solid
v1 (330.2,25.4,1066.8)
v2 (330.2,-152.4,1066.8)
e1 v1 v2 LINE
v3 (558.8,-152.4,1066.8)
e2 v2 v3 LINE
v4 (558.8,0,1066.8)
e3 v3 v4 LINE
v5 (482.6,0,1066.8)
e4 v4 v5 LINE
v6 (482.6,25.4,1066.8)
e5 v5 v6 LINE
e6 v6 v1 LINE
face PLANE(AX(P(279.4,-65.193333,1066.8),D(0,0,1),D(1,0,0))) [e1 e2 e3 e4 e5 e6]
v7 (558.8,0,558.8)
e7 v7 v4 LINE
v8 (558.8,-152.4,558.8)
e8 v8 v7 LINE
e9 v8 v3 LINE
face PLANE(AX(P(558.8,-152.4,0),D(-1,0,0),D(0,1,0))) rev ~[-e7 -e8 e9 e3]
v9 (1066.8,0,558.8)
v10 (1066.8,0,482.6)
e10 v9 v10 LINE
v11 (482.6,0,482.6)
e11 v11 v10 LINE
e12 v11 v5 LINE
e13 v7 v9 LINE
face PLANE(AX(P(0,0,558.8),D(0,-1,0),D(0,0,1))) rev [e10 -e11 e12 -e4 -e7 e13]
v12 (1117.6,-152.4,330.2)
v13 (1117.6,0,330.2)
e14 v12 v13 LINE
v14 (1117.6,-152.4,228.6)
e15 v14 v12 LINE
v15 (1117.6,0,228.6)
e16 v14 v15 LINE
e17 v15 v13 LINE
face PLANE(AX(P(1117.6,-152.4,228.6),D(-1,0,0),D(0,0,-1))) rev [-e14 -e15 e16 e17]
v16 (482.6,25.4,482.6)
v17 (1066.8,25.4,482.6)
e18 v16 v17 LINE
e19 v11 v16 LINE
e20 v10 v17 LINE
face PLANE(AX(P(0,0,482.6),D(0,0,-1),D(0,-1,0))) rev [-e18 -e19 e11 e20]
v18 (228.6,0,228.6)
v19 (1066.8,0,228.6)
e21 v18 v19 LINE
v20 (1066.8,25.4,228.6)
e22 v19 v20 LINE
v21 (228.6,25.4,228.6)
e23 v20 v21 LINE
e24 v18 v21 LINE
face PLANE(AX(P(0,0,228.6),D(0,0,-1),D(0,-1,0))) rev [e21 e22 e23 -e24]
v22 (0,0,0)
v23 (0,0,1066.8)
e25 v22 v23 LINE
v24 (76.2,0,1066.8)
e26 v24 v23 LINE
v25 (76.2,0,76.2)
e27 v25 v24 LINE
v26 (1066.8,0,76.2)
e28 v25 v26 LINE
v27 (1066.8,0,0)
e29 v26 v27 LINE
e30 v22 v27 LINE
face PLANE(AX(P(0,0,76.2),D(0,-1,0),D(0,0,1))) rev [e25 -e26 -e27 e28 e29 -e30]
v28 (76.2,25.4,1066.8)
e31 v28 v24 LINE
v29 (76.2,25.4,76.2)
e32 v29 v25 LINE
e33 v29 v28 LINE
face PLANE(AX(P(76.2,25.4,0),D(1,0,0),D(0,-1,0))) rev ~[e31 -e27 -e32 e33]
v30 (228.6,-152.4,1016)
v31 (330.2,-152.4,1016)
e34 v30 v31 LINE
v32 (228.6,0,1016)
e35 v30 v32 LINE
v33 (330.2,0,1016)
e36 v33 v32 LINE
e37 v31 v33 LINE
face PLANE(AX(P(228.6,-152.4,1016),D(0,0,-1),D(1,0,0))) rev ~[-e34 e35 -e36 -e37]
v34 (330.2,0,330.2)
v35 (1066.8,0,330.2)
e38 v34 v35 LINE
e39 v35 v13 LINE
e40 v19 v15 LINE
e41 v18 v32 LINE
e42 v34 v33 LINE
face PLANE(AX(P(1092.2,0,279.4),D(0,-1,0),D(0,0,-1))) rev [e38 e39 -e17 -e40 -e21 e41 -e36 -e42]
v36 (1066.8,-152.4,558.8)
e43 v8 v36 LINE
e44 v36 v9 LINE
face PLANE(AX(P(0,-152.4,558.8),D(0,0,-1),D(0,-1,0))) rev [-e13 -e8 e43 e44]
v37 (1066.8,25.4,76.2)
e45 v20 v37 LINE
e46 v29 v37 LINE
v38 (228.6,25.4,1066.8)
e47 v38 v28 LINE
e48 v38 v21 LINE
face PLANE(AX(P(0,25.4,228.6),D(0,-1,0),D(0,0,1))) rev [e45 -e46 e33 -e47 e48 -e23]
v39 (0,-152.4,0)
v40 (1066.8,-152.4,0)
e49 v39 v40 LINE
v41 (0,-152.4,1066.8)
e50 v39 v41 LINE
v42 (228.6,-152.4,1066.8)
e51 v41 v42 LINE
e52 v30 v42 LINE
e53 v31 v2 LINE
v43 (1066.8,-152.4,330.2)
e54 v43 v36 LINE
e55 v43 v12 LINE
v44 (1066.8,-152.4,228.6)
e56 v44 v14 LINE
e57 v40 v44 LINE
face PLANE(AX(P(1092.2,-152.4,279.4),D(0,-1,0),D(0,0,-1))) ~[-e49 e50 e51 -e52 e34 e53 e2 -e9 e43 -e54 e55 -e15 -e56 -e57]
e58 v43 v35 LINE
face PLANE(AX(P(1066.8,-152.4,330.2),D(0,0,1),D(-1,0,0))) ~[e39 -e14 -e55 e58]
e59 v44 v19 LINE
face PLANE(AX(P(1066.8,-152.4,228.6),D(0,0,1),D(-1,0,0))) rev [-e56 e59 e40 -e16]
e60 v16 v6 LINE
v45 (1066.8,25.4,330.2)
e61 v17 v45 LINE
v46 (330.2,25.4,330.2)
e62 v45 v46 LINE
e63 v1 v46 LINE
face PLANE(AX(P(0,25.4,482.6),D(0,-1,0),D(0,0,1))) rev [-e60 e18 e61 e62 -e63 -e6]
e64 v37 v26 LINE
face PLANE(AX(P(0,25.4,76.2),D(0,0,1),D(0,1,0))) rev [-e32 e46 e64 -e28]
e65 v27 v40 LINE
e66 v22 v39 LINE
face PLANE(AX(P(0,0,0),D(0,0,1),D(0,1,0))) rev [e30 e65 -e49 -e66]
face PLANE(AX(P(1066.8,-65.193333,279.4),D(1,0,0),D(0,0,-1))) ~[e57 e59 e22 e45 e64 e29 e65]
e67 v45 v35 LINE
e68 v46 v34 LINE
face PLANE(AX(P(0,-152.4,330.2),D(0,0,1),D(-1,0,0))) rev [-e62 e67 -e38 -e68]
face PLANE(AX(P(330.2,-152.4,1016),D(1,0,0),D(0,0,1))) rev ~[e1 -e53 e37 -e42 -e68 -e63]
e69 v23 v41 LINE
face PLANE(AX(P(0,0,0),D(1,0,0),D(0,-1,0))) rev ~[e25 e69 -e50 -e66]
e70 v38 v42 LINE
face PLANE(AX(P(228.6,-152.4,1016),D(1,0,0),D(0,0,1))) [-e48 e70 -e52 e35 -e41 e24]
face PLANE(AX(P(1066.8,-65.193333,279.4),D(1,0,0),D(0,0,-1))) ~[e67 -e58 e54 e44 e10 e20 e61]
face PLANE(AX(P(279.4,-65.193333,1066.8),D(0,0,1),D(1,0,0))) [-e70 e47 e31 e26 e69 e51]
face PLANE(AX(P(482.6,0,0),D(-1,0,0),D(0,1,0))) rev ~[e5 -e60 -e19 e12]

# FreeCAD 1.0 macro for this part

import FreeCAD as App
import Part
import Sketcher
from FreeCAD import Vector
Q = App.Units.Quantity

doc = App.newDocument("Part")
params = doc.addObject("Spreadsheet::Sheet", "Params")
for row, (alias, value) in enumerate([
    ("sketch1_width", "3 in"),
    ("sketch1_width2", "22 in"),
    ("sketch1_width3", "6 in"),
    ("sketch1_height", "1 in"),
    ("pad1_length", "42 in"),
    ("sketch2_width", "4 in"),
    ("sketch2_height", "2 in"),
    ("pad2_length", "6 in"),
    ("sketch3_width", "4 in"),
    ("sketch3_height", "2 in"),
    ("sketch5_width", "4 in"),
], start=1):
    params.set(f"A{row}", alias)
    params.set(f"B{row}", "=" + value)
    params.setAlias(f"B{row}", alias)

body = doc.addObject("PartDesign::Body", "Body")

sketch1 = body.newObject("Sketcher::SketchObject", "Sketch")
sketch1.AttachmentSupport = (doc.getObject("XY_Plane"), [""])
sketch1.MapMode = "FlatFace"
sketch1.addGeometry(Part.LineSegment(Vector(76, 0, 0), Vector(0, 0, 0)), False)
sketch1.addGeometry(Part.LineSegment(Vector(0, 0, 0), Vector(0, -152, 0)), False)
sketch1.addGeometry(Part.LineSegment(Vector(0, -152, 0), Vector(559, -152, 0)), False)
sketch1.addGeometry(Part.LineSegment(Vector(559, -152, 0), Vector(559, 0, 0)), False)
sketch1.addGeometry(Part.LineSegment(Vector(559, 0, 0), Vector(483, 0, 0)), False)
sketch1.addGeometry(Part.LineSegment(Vector(483, 0, 0), Vector(483, 25, 0)), False)
sketch1.addGeometry(Part.LineSegment(Vector(483, 25, 0), Vector(330, 25, 0)), False)
sketch1.addGeometry(Part.LineSegment(Vector(330, 25, 0), Vector(330, 0, 0)), False)
sketch1.addGeometry(Part.LineSegment(Vector(330, 0, 0), Vector(229, 0, 0)), False)
sketch1.addGeometry(Part.LineSegment(Vector(229, 0, 0), Vector(229, 25, 0)), False)
sketch1.addGeometry(Part.LineSegment(Vector(229, 25, 0), Vector(76, 25, 0)), False)
sketch1.addGeometry(Part.LineSegment(Vector(76, 25, 0), Vector(76, 0, 0)), False)
sketch1.addConstraint(Sketcher.Constraint("Coincident", 0, 2, 1, 1))
sketch1.addConstraint(Sketcher.Constraint("Coincident", 1, 2, 2, 1))
sketch1.addConstraint(Sketcher.Constraint("Coincident", 2, 2, 3, 1))
sketch1.addConstraint(Sketcher.Constraint("Coincident", 3, 2, 4, 1))
sketch1.addConstraint(Sketcher.Constraint("Coincident", 4, 2, 5, 1))
sketch1.addConstraint(Sketcher.Constraint("Coincident", 5, 2, 6, 1))
sketch1.addConstraint(Sketcher.Constraint("Coincident", 6, 2, 7, 1))
sketch1.addConstraint(Sketcher.Constraint("Coincident", 7, 2, 8, 1))
sketch1.addConstraint(Sketcher.Constraint("Coincident", 8, 2, 9, 1))
sketch1.addConstraint(Sketcher.Constraint("Coincident", 9, 2, 10, 1))
sketch1.addConstraint(Sketcher.Constraint("Coincident", 10, 2, 11, 1))
sketch1.addConstraint(Sketcher.Constraint("Coincident", 11, 2, 0, 1))
sketch1.addConstraint(Sketcher.Constraint("Horizontal", 0))
sketch1.addConstraint(Sketcher.Constraint("Vertical", 1))
sketch1.addConstraint(Sketcher.Constraint("Horizontal", 2))
sketch1.addConstraint(Sketcher.Constraint("Vertical", 3))
sketch1.addConstraint(Sketcher.Constraint("Horizontal", 4))
sketch1.addConstraint(Sketcher.Constraint("Vertical", 5))
sketch1.addConstraint(Sketcher.Constraint("Horizontal", 6))
sketch1.addConstraint(Sketcher.Constraint("Vertical", 7))
sketch1.addConstraint(Sketcher.Constraint("Horizontal", 8))
sketch1.addConstraint(Sketcher.Constraint("Vertical", 9))
sketch1.addConstraint(Sketcher.Constraint("Horizontal", 10))
sketch1.addConstraint(Sketcher.Constraint("Vertical", 11))
sketch1.addConstraint(Sketcher.Constraint("Coincident", 0, 2, -1, 1))
sketch1.addConstraint(Sketcher.Constraint("PointOnObject", 3, 2, -1))
sketch1.addConstraint(Sketcher.Constraint("PointOnObject", 7, 2, -1))
sketch1.addConstraint(Sketcher.Constraint("Horizontal", 6, 2, 9, 2))
sketch1.addConstraint(Sketcher.Constraint("Equal", 0, 4))
sketch1.addConstraint(Sketcher.Constraint("Equal", 6, 10))
sketch1.addConstraint(Sketcher.Constraint("Equal", 10, 1))
sketch1.addConstraint(Sketcher.Constraint("DistanceX", 0, 2, 0, 1, Q("3 in")))
sketch1.addConstraint(Sketcher.Constraint("DistanceX", 2, 1, 2, 2, Q("22 in")))
sketch1.addConstraint(Sketcher.Constraint("DistanceX", 6, 2, 6, 1, Q("6 in")))
sketch1.addConstraint(Sketcher.Constraint("DistanceY", 5, 1, 5, 2, Q("1 in")))
sketch1.setExpression("Constraints[31]", "Params.sketch1_width")
sketch1.setExpression("Constraints[32]", "Params.sketch1_width2")
sketch1.setExpression("Constraints[33]", "Params.sketch1_width3")
sketch1.setExpression("Constraints[34]", "Params.sketch1_height")
pad1 = body.newObject("PartDesign::Pad", "Pad")
pad1.Profile = sketch1
pad1.setExpression("Length", "Params.pad1_length")

sketch2 = body.newObject("Sketcher::SketchObject", "Sketch001")
sketch2.AttachmentSupport = (doc.getObject("XZ_Plane"), [""])
sketch2.MapMode = "FlatFace"
sketch2.AttachmentOffset = App.Placement(Vector(0, 0, 6 * 25.4), App.Rotation())
sketch2.addGeometry(Part.LineSegment(Vector(229, 1118, 0), Vector(229, 1067, 0)), False)
sketch2.addGeometry(Part.LineSegment(Vector(229, 1067, 0), Vector(330, 1067, 0)), False)
sketch2.addGeometry(Part.LineSegment(Vector(330, 1067, 0), Vector(330, 1118, 0)), False)
sketch2.addGeometry(Part.LineSegment(Vector(330, 1118, 0), Vector(229, 1118, 0)), False)
sketch2.addConstraint(Sketcher.Constraint("Coincident", 0, 2, 1, 1))
sketch2.addConstraint(Sketcher.Constraint("Coincident", 1, 2, 2, 1))
sketch2.addConstraint(Sketcher.Constraint("Coincident", 2, 2, 3, 1))
sketch2.addConstraint(Sketcher.Constraint("Coincident", 3, 2, 0, 1))
sketch2.addConstraint(Sketcher.Constraint("Vertical", 0))
sketch2.addConstraint(Sketcher.Constraint("Horizontal", 1))
sketch2.addConstraint(Sketcher.Constraint("Vertical", 2))
sketch2.addConstraint(Sketcher.Constraint("Horizontal", 3))
sketch2.addConstraint(Sketcher.Constraint("DistanceX", 1, 1, 1, 2, Q("4 in")))
sketch2.addConstraint(Sketcher.Constraint("DistanceY", 0, 2, 0, 1, Q("2 in")))
sketch2.addConstraint(Sketcher.Constraint("DistanceX", -1, 1, 0, 2, Q("9 in")))
sketch2.addConstraint(Sketcher.Constraint("DistanceY", -1, 1, 0, 2, Q("42 in")))
sketch2.setExpression("Constraints[8]", "Params.sketch2_width")
sketch2.setExpression("Constraints[9]", "Params.sketch2_height")
pad2 = body.newObject("PartDesign::Pad", "Pad001")
pad2.Profile = sketch2
pad2.setExpression("Length", "Params.pad2_length")
pad2.Reversed = True

sketch3 = body.newObject("Sketcher::SketchObject", "Sketch002")
sketch3.AttachmentSupport = (doc.getObject("XZ_Plane"), [""])
sketch3.MapMode = "FlatFace"
sketch3.AttachmentOffset = App.Placement(Vector(0, 0, 6 * 25.4), App.Rotation())
sketch3.addGeometry(Part.LineSegment(Vector(229, 51, 0), Vector(229, 0, 0)), False)
sketch3.addGeometry(Part.LineSegment(Vector(229, 0, 0), Vector(330, 0, 0)), False)
sketch3.addGeometry(Part.LineSegment(Vector(330, 0, 0), Vector(330, 51, 0)), False)
sketch3.addGeometry(Part.LineSegment(Vector(330, 51, 0), Vector(229, 51, 0)), False)
sketch3.addConstraint(Sketcher.Constraint("Coincident", 0, 2, 1, 1))
sketch3.addConstraint(Sketcher.Constraint("Coincident", 1, 2, 2, 1))
sketch3.addConstraint(Sketcher.Constraint("Coincident", 2, 2, 3, 1))
sketch3.addConstraint(Sketcher.Constraint("Coincident", 3, 2, 0, 1))
sketch3.addConstraint(Sketcher.Constraint("Vertical", 0))
sketch3.addConstraint(Sketcher.Constraint("Horizontal", 1))
sketch3.addConstraint(Sketcher.Constraint("Vertical", 2))
sketch3.addConstraint(Sketcher.Constraint("Horizontal", 3))
sketch3.addConstraint(Sketcher.Constraint("PointOnObject", 0, 2, -1))
sketch3.addConstraint(Sketcher.Constraint("DistanceX", 1, 1, 1, 2, Q("4 in")))
sketch3.addConstraint(Sketcher.Constraint("DistanceY", 0, 2, 0, 1, Q("2 in")))
sketch3.addConstraint(Sketcher.Constraint("DistanceX", -1, 1, 0, 2, Q("9 in")))
sketch3.setExpression("Constraints[9]", "Params.sketch3_width")
sketch3.setExpression("Constraints[10]", "Params.sketch3_height")
pocket1 = body.newObject("PartDesign::Pocket", "Pocket")
pocket1.Profile = sketch3
pocket1.Type = "ThroughAll"

sketch4 = body.newObject("Sketcher::SketchObject", "Sketch003")
sketch4.AttachmentSupport = (doc.getObject("XZ_Plane"), [""])
sketch4.MapMode = "FlatFace"
sketch4.AttachmentOffset = App.Placement(Vector(0, 0, 6 * 25.4), App.Rotation())
sketch4.addGeometry(Part.LineSegment(Vector(586, 586, 0), Vector(0, 0, 0)), False)
sketch4.addGeometry(Part.LineSegment(Vector(0, 0, 0), Vector(586, 0, 0)), False)
sketch4.addGeometry(Part.LineSegment(Vector(586, 0, 0), Vector(586, 586, 0)), False)
sketch4.addConstraint(Sketcher.Constraint("Coincident", 0, 2, 1, 1))
sketch4.addConstraint(Sketcher.Constraint("Coincident", 1, 2, 2, 1))
sketch4.addConstraint(Sketcher.Constraint("Coincident", 2, 2, 0, 1))
sketch4.addConstraint(Sketcher.Constraint("Horizontal", 1))
sketch4.addConstraint(Sketcher.Constraint("Vertical", 2))
sketch4.addConstraint(Sketcher.Constraint("Coincident", 0, 2, -1, 1))
sketch4.addConstraint(Sketcher.Constraint("Equal", 1, 2))
sketch4.addConstraint(Sketcher.Constraint("Distance", 0, 828.878879))
pocket2 = body.newObject("PartDesign::Pocket", "Pocket001")
pocket2.Profile = sketch4
pocket2.Type = "ThroughAll"
body2 = doc.addObject("PartDesign::Body", "Body001")
doc.recompute()

body2.BaseFeature = body
doc.recompute()

mirroring = doc.addObject("Part::Mirroring", "Mirroring")
mirroring.Source = body
mirroring.Base = Vector(279.4, -68.791667, 279.4)
mirroring.Normal = Vector(0.707106781, 0, -0.707106781)
body3 = doc.addObject("PartDesign::Body", "Body002")
body3.BaseFeature = mirroring
boolean = body2.newObject("PartDesign::Boolean", "Boolean")
boolean.Type = "Fuse"
boolean.addObjects([body3])
doc.recompute()

sketch5 = body2.newObject("Sketcher::SketchObject", "Sketch004")
sketch5.AttachmentSupport = (doc.getObject("XZ_Plane001"), [""])
sketch5.MapMode = "FlatFace"
sketch5.AttachmentOffset = App.Placement(Vector(0, 0, 6 * 25.4), App.Rotation())
sketch5.addGeometry(Part.LineSegment(Vector(229, 1118, 0), Vector(229, 1016, 0)), False)
sketch5.addGeometry(Part.LineSegment(Vector(229, 1016, 0), Vector(330, 1016, 0)), False)
sketch5.addGeometry(Part.LineSegment(Vector(330, 1016, 0), Vector(330, 1118, 0)), False)
sketch5.addGeometry(Part.LineSegment(Vector(330, 1118, 0), Vector(229, 1118, 0)), False)
sketch5.addConstraint(Sketcher.Constraint("Coincident", 0, 2, 1, 1))
sketch5.addConstraint(Sketcher.Constraint("Coincident", 1, 2, 2, 1))
sketch5.addConstraint(Sketcher.Constraint("Coincident", 2, 2, 3, 1))
sketch5.addConstraint(Sketcher.Constraint("Coincident", 3, 2, 0, 1))
sketch5.addConstraint(Sketcher.Constraint("Vertical", 0))
sketch5.addConstraint(Sketcher.Constraint("Horizontal", 1))
sketch5.addConstraint(Sketcher.Constraint("Vertical", 2))
sketch5.addConstraint(Sketcher.Constraint("Horizontal", 3))
sketch5.addConstraint(Sketcher.Constraint("Equal", 3, 0))
sketch5.addConstraint(Sketcher.Constraint("DistanceX", 1, 1, 1, 2, Q("4 in")))
sketch5.addConstraint(Sketcher.Constraint("DistanceX", -1, 1, 0, 2, Q("9 in")))
sketch5.addConstraint(Sketcher.Constraint("DistanceY", -1, 1, 0, 2, Q("40 in")))
sketch5.setExpression("Constraints[9]", "Params.sketch5_width")
pocket3 = body2.newObject("PartDesign::Pocket", "Pocket002")
pocket3.Profile = sketch5
pocket3.Type = "ThroughAll"
mirroring.Visibility = False

doc.recompute()
